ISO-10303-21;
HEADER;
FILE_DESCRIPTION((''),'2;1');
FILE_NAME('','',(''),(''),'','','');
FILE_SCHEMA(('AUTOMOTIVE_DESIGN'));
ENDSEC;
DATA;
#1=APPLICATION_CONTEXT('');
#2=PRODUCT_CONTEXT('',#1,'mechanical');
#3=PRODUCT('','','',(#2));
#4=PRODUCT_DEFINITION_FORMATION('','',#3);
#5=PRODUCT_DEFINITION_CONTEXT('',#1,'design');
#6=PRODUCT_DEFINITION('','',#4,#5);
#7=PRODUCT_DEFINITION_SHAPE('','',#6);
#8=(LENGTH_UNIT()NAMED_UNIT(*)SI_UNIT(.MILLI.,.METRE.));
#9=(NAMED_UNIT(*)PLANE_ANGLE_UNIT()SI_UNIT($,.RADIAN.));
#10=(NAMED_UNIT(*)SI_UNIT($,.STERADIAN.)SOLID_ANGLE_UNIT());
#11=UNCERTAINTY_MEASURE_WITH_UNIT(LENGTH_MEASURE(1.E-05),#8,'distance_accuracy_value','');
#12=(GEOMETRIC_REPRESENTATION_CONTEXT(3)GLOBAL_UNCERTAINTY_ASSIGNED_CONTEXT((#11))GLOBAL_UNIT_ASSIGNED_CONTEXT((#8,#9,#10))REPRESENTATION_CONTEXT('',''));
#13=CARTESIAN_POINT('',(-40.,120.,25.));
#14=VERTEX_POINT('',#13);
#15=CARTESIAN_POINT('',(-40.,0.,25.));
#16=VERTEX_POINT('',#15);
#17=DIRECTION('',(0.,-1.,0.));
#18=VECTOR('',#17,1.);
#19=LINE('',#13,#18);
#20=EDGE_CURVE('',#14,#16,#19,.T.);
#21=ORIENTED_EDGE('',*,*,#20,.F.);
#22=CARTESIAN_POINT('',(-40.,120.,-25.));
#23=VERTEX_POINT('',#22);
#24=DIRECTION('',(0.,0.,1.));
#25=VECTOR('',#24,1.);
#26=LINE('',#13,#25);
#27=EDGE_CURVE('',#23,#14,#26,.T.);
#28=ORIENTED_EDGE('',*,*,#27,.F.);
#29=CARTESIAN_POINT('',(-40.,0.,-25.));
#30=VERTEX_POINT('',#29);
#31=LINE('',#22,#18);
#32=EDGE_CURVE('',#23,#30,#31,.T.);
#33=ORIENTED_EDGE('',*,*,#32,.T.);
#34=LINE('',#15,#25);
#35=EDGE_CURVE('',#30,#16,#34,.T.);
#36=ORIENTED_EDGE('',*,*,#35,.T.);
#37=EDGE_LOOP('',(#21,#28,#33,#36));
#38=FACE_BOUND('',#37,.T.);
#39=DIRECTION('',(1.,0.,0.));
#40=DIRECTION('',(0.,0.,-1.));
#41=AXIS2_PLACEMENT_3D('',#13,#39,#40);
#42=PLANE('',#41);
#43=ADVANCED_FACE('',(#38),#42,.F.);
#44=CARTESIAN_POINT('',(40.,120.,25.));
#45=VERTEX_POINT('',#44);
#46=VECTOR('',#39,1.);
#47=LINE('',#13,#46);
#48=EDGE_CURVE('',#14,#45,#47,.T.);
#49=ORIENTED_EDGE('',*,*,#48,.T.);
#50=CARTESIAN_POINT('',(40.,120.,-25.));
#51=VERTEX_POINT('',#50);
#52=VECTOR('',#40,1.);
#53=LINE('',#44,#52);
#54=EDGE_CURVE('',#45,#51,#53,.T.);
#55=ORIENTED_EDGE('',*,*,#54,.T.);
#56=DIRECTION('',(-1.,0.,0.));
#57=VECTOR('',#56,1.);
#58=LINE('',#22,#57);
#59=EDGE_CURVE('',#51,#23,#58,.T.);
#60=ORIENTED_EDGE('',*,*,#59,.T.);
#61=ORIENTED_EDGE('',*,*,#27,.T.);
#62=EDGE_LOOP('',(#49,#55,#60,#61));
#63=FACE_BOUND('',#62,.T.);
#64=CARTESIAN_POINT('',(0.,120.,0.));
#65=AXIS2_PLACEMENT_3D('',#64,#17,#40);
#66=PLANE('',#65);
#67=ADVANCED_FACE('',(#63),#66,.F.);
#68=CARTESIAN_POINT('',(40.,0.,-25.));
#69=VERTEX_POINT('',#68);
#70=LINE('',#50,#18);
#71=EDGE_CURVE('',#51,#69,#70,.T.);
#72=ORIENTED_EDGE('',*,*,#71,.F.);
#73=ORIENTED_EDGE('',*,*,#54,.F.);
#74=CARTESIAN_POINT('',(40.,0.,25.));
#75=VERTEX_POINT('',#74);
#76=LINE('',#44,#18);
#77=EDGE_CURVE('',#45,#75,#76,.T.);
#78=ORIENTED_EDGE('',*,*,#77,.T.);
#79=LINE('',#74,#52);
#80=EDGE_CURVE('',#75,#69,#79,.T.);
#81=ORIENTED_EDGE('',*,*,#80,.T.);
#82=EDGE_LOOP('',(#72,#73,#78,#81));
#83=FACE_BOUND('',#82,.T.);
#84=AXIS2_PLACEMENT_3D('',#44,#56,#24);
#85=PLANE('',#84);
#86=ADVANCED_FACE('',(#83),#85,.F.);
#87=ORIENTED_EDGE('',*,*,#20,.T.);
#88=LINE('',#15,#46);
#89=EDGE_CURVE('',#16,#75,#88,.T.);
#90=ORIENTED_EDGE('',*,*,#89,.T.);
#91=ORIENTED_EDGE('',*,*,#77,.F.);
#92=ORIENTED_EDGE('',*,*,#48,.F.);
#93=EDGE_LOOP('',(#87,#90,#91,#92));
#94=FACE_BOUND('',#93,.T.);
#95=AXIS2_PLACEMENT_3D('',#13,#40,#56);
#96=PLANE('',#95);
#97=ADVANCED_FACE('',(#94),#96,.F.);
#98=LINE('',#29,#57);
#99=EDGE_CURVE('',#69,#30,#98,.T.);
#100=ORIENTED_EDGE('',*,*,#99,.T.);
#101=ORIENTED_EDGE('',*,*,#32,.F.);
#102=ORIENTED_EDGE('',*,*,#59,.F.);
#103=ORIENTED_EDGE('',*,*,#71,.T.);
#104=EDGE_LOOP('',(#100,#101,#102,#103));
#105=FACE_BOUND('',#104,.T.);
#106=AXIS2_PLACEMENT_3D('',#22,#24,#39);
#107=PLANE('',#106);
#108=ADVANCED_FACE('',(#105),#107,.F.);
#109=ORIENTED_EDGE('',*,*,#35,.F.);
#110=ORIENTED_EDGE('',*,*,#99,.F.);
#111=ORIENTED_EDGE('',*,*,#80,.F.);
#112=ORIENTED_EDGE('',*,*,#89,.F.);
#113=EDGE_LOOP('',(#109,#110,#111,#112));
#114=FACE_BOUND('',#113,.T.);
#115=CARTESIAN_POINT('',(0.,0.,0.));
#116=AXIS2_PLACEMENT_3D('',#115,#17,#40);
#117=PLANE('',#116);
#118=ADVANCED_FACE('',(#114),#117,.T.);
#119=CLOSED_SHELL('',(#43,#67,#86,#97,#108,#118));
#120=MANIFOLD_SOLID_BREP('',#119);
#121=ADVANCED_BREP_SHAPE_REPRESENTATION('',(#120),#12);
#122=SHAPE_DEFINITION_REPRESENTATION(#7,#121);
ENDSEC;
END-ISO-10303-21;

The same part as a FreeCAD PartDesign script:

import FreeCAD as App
import Part
import Sketcher
from FreeCAD import Vector


def add_polygon(sketch, points):
    """Adds a closed chain of lines whose ends are joined by coincident constraints."""
    first, n = sketch.GeometryCount, len(points)
    for a, b in zip(points, points[1:] + points[:1]):
        sketch.addGeometry(Part.LineSegment(App.Vector(*a, 0), App.Vector(*b, 0)), False)
    for i in range(n):
        sketch.addConstraint(Sketcher.Constraint("Coincident", first + i, 2, first + (i + 1) % n, 1))

doc = App.newDocument("Part")
params = doc.addObject("Spreadsheet::Sheet", "Params")
for row, (alias, value) in enumerate([
    ("sketch1_width", "80 mm"),
    ("sketch1_height", "50 mm"),
    ("pad1_length", "120 mm"),
], start=1):
    params.set(f"A{row}", alias)
    params.set(f"B{row}", "=" + value)
    params.setAlias(f"B{row}", alias)

body = doc.addObject("PartDesign::Body", "Body")

sketch1 = body.newObject("Sketcher::SketchObject", "Sketch")
sketch1.AttachmentSupport = (doc.getObject("XZ_Plane"), [""])
sketch1.MapMode = "FlatFace"
add_polygon(sketch1, [(-40, -25), (-40, 25), (40, 25), (40, -25)])
sketch1.addConstraint(Sketcher.Constraint("Vertical", 0))
sketch1.addConstraint(Sketcher.Constraint("Horizontal", 1))
sketch1.addConstraint(Sketcher.Constraint("Vertical", 2))
sketch1.addConstraint(Sketcher.Constraint("Horizontal", 3))
sketch1.addConstraint(Sketcher.Constraint("Symmetric", 0, 2, 2, 2, -1, 1))
sketch1.addConstraint(Sketcher.Constraint("DistanceX", 1, 1, 1, 2, 80.0))
sketch1.addConstraint(Sketcher.Constraint("DistanceY", 0, 1, 0, 2, 50.0))
sketch1.setExpression("Constraints[9]", "Params.sketch1_width")
sketch1.setExpression("Constraints[10]", "Params.sketch1_height")
pad1 = body.newObject("PartDesign::Pad", "Pad")
pad1.Profile = sketch1
pad1.setExpression("Length", "Params.pad1_length")
pad1.Reversed = True

doc.recompute()
